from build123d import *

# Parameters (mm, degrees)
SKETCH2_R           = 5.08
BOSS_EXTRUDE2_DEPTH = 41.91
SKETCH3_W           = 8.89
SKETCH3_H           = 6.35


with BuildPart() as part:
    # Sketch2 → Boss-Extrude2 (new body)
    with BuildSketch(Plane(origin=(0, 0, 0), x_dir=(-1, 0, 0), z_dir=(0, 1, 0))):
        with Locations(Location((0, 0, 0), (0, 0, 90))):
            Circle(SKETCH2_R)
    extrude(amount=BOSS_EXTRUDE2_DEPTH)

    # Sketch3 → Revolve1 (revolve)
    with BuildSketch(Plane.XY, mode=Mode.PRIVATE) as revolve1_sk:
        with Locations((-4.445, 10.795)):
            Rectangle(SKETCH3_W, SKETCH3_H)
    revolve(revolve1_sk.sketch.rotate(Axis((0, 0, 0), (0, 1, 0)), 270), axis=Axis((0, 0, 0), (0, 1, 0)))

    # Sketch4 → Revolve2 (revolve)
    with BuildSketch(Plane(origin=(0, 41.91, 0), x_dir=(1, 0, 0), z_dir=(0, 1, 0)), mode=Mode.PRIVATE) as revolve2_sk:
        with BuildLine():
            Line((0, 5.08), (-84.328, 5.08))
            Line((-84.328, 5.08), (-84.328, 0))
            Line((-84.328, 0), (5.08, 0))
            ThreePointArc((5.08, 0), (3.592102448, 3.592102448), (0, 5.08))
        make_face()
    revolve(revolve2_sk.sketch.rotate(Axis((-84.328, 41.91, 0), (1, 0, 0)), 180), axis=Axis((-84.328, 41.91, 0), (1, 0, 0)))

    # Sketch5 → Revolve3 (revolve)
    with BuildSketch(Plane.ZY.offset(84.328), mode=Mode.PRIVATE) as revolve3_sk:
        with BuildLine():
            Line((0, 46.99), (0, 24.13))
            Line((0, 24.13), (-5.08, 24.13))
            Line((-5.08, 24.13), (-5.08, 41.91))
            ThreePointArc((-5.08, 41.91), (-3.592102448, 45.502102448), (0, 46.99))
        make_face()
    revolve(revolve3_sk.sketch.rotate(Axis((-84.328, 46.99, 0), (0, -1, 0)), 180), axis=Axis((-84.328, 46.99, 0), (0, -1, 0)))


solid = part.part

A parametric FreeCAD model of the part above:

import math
import FreeCAD as App
import Part
import Sketcher
Q = App.Units.Quantity


def add_polygon(sketch, points):
    """Adds a closed chain of lines whose ends are joined by coincident constraints."""
    first, n = sketch.GeometryCount, len(points)
    for a, b in zip(points, points[1:] + points[:1]):
        sketch.addGeometry(Part.LineSegment(App.Vector(*a, 0), App.Vector(*b, 0)), False)
    for i in range(n):
        sketch.addConstraint(Sketcher.Constraint("Coincident", first + i, 2, first + (i + 1) % n, 1))

doc = App.newDocument("Part")
body = doc.addObject("PartDesign::Body", "Body")

# Sketch on XZ plane
sketch1 = body.newObject("Sketcher::SketchObject", "Sketch")
sketch1.AttachmentSupport = (doc.getObject("XZ_Plane"), [""])
sketch1.MapMode = "FlatFace"
sketch1.addGeometry(Part.Circle(App.Vector(0, 0, 0), App.Vector(0, 0, 1), 5), False)
sketch1.addConstraint([
    Sketcher.Constraint("Coincident", 0, 3, -1, 1),
    Sketcher.Constraint("Diameter", 0, Q("0.4 in")),
])
pad1 = body.newObject("PartDesign::Pad", "Pad")
pad1.Profile = sketch1
pad1.Length = Q("1.65 in")
pad1.Reversed = True

# Sketch on XY plane
sketch2 = body.newObject("Sketcher::SketchObject", "Sketch001")
sketch2.AttachmentSupport = (doc.getObject("XY_Plane"), [""])
sketch2.MapMode = "FlatFace"
add_polygon(sketch2, [(-9, 14), (-9, 8), (0, 8), (0, 14)])  # lines 0-3
sketch2.addConstraint([
    Sketcher.Constraint("Vertical", 0),
    Sketcher.Constraint("Horizontal", 1),
    Sketcher.Constraint("Vertical", 2),
    Sketcher.Constraint("Horizontal", 3),
    Sketcher.Constraint("PointOnObject", 1, 2, -2),
    Sketcher.Constraint("DistanceX", 1, 1, 1, 2, Q("0.35 in")),
    Sketcher.Constraint("DistanceY", 0, 2, 0, 1, Q("0.25 in")),
    Sketcher.Constraint("DistanceY", -1, 1, 0, 2, Q("0.3 in")),
])
revolution = body.newObject("PartDesign::Revolution", "Revolution")
revolution.Profile = sketch2
revolution.ReferenceAxis = (sketch2, ["V_Axis"])
revolution.Angle = 360

# Sketch on XZ plane
sketch3 = body.newObject("Sketcher::SketchObject", "Sketch002")
sketch3.AttachmentSupport = (doc.getObject("XZ_Plane"), [""])
sketch3.MapMode = "FlatFace"
sketch3.AttachmentOffset = App.Placement(App.Vector(0, 0, -1.65 * 25.4), App.Rotation())
sketch3.addGeometry([
    Part.LineSegment(App.Vector(0, -5, 0), App.Vector(-84, -5, 0)),
    Part.LineSegment(App.Vector(-84, -5, 0), App.Vector(-84, 0, 0)),
    Part.LineSegment(App.Vector(-84, 0, 0), App.Vector(5, 0, 0)),
    Part.ArcOfCircle(Part.Circle(App.Vector(0, 0, 0), App.Vector(0, 0, 1), 5), math.radians(-90), math.radians(0)),
], False)
sketch3.addConstraint([
    Sketcher.Constraint("Coincident", 0, 2, 1, 1),
    Sketcher.Constraint("Coincident", 1, 2, 2, 1),
    Sketcher.Constraint("Coincident", 2, 2, 3, 2),
    Sketcher.Constraint("Tangent", 3, 1, 0, 1),
    Sketcher.Constraint("Horizontal", 0),
    Sketcher.Constraint("Vertical", 1),
    Sketcher.Constraint("Horizontal", 2),
    Sketcher.Constraint("Coincident", 3, 3, -1, 1),
    Sketcher.Constraint("PointOnObject", 1, 2, -1),
    Sketcher.Constraint("Radius", 3, Q("0.2 in")),
    Sketcher.Constraint("DistanceX", 0, 2, 0, 1, Q("3.32 in")),
])
revolution2 = body.newObject("PartDesign::Revolution", "Revolution001")
revolution2.Profile = sketch3
revolution2.ReferenceAxis = (sketch3, ["H_Axis"])
revolution2.Angle = 360

# Sketch on YZ plane
sketch4 = body.newObject("Sketcher::SketchObject", "Sketch003")
sketch4.AttachmentSupport = (doc.getObject("YZ_Plane"), [""])
sketch4.MapMode = "FlatFace"
sketch4.AttachmentOffset = App.Placement(App.Vector(0, 0, -3.32 * 25.4), App.Rotation())
sketch4.addGeometry([
    Part.LineSegment(App.Vector(24, 0, 0), App.Vector(47, 0, 0)),
    Part.ArcOfCircle(Part.Circle(App.Vector(42, 0, 0), App.Vector(0, 0, 1), 5), math.radians(-90), math.radians(0)),
    Part.LineSegment(App.Vector(42, -5, 0), App.Vector(24, -5, 0)),
    Part.LineSegment(App.Vector(24, -5, 0), App.Vector(24, 0, 0)),
], False)
sketch4.addConstraint([
    Sketcher.Constraint("Coincident", 0, 2, 1, 2),
    Sketcher.Constraint("Tangent", 1, 1, 2, 1),
    Sketcher.Constraint("Coincident", 2, 2, 3, 1),
    Sketcher.Constraint("Coincident", 3, 2, 0, 1),
    Sketcher.Constraint("Horizontal", 0),
    Sketcher.Constraint("Horizontal", 2),
    Sketcher.Constraint("Vertical", 3),
    Sketcher.Constraint("PointOnObject", 1, 3, -1),
    Sketcher.Constraint("PointOnObject", 0, 2, -1),
    Sketcher.Constraint("Radius", 1, Q("0.2 in")),
    Sketcher.Constraint("DistanceX", 0, 1, 0, 2, Q("0.9 in")),
    Sketcher.Constraint("DistanceX", -1, 1, 1, 3, Q("1.65 in")),
])
revolution3 = body.newObject("PartDesign::Revolution", "Revolution002")
revolution3.Profile = sketch4
revolution3.ReferenceAxis = (sketch4, ["H_Axis"])
revolution3.Angle = 360

doc.recompute()
